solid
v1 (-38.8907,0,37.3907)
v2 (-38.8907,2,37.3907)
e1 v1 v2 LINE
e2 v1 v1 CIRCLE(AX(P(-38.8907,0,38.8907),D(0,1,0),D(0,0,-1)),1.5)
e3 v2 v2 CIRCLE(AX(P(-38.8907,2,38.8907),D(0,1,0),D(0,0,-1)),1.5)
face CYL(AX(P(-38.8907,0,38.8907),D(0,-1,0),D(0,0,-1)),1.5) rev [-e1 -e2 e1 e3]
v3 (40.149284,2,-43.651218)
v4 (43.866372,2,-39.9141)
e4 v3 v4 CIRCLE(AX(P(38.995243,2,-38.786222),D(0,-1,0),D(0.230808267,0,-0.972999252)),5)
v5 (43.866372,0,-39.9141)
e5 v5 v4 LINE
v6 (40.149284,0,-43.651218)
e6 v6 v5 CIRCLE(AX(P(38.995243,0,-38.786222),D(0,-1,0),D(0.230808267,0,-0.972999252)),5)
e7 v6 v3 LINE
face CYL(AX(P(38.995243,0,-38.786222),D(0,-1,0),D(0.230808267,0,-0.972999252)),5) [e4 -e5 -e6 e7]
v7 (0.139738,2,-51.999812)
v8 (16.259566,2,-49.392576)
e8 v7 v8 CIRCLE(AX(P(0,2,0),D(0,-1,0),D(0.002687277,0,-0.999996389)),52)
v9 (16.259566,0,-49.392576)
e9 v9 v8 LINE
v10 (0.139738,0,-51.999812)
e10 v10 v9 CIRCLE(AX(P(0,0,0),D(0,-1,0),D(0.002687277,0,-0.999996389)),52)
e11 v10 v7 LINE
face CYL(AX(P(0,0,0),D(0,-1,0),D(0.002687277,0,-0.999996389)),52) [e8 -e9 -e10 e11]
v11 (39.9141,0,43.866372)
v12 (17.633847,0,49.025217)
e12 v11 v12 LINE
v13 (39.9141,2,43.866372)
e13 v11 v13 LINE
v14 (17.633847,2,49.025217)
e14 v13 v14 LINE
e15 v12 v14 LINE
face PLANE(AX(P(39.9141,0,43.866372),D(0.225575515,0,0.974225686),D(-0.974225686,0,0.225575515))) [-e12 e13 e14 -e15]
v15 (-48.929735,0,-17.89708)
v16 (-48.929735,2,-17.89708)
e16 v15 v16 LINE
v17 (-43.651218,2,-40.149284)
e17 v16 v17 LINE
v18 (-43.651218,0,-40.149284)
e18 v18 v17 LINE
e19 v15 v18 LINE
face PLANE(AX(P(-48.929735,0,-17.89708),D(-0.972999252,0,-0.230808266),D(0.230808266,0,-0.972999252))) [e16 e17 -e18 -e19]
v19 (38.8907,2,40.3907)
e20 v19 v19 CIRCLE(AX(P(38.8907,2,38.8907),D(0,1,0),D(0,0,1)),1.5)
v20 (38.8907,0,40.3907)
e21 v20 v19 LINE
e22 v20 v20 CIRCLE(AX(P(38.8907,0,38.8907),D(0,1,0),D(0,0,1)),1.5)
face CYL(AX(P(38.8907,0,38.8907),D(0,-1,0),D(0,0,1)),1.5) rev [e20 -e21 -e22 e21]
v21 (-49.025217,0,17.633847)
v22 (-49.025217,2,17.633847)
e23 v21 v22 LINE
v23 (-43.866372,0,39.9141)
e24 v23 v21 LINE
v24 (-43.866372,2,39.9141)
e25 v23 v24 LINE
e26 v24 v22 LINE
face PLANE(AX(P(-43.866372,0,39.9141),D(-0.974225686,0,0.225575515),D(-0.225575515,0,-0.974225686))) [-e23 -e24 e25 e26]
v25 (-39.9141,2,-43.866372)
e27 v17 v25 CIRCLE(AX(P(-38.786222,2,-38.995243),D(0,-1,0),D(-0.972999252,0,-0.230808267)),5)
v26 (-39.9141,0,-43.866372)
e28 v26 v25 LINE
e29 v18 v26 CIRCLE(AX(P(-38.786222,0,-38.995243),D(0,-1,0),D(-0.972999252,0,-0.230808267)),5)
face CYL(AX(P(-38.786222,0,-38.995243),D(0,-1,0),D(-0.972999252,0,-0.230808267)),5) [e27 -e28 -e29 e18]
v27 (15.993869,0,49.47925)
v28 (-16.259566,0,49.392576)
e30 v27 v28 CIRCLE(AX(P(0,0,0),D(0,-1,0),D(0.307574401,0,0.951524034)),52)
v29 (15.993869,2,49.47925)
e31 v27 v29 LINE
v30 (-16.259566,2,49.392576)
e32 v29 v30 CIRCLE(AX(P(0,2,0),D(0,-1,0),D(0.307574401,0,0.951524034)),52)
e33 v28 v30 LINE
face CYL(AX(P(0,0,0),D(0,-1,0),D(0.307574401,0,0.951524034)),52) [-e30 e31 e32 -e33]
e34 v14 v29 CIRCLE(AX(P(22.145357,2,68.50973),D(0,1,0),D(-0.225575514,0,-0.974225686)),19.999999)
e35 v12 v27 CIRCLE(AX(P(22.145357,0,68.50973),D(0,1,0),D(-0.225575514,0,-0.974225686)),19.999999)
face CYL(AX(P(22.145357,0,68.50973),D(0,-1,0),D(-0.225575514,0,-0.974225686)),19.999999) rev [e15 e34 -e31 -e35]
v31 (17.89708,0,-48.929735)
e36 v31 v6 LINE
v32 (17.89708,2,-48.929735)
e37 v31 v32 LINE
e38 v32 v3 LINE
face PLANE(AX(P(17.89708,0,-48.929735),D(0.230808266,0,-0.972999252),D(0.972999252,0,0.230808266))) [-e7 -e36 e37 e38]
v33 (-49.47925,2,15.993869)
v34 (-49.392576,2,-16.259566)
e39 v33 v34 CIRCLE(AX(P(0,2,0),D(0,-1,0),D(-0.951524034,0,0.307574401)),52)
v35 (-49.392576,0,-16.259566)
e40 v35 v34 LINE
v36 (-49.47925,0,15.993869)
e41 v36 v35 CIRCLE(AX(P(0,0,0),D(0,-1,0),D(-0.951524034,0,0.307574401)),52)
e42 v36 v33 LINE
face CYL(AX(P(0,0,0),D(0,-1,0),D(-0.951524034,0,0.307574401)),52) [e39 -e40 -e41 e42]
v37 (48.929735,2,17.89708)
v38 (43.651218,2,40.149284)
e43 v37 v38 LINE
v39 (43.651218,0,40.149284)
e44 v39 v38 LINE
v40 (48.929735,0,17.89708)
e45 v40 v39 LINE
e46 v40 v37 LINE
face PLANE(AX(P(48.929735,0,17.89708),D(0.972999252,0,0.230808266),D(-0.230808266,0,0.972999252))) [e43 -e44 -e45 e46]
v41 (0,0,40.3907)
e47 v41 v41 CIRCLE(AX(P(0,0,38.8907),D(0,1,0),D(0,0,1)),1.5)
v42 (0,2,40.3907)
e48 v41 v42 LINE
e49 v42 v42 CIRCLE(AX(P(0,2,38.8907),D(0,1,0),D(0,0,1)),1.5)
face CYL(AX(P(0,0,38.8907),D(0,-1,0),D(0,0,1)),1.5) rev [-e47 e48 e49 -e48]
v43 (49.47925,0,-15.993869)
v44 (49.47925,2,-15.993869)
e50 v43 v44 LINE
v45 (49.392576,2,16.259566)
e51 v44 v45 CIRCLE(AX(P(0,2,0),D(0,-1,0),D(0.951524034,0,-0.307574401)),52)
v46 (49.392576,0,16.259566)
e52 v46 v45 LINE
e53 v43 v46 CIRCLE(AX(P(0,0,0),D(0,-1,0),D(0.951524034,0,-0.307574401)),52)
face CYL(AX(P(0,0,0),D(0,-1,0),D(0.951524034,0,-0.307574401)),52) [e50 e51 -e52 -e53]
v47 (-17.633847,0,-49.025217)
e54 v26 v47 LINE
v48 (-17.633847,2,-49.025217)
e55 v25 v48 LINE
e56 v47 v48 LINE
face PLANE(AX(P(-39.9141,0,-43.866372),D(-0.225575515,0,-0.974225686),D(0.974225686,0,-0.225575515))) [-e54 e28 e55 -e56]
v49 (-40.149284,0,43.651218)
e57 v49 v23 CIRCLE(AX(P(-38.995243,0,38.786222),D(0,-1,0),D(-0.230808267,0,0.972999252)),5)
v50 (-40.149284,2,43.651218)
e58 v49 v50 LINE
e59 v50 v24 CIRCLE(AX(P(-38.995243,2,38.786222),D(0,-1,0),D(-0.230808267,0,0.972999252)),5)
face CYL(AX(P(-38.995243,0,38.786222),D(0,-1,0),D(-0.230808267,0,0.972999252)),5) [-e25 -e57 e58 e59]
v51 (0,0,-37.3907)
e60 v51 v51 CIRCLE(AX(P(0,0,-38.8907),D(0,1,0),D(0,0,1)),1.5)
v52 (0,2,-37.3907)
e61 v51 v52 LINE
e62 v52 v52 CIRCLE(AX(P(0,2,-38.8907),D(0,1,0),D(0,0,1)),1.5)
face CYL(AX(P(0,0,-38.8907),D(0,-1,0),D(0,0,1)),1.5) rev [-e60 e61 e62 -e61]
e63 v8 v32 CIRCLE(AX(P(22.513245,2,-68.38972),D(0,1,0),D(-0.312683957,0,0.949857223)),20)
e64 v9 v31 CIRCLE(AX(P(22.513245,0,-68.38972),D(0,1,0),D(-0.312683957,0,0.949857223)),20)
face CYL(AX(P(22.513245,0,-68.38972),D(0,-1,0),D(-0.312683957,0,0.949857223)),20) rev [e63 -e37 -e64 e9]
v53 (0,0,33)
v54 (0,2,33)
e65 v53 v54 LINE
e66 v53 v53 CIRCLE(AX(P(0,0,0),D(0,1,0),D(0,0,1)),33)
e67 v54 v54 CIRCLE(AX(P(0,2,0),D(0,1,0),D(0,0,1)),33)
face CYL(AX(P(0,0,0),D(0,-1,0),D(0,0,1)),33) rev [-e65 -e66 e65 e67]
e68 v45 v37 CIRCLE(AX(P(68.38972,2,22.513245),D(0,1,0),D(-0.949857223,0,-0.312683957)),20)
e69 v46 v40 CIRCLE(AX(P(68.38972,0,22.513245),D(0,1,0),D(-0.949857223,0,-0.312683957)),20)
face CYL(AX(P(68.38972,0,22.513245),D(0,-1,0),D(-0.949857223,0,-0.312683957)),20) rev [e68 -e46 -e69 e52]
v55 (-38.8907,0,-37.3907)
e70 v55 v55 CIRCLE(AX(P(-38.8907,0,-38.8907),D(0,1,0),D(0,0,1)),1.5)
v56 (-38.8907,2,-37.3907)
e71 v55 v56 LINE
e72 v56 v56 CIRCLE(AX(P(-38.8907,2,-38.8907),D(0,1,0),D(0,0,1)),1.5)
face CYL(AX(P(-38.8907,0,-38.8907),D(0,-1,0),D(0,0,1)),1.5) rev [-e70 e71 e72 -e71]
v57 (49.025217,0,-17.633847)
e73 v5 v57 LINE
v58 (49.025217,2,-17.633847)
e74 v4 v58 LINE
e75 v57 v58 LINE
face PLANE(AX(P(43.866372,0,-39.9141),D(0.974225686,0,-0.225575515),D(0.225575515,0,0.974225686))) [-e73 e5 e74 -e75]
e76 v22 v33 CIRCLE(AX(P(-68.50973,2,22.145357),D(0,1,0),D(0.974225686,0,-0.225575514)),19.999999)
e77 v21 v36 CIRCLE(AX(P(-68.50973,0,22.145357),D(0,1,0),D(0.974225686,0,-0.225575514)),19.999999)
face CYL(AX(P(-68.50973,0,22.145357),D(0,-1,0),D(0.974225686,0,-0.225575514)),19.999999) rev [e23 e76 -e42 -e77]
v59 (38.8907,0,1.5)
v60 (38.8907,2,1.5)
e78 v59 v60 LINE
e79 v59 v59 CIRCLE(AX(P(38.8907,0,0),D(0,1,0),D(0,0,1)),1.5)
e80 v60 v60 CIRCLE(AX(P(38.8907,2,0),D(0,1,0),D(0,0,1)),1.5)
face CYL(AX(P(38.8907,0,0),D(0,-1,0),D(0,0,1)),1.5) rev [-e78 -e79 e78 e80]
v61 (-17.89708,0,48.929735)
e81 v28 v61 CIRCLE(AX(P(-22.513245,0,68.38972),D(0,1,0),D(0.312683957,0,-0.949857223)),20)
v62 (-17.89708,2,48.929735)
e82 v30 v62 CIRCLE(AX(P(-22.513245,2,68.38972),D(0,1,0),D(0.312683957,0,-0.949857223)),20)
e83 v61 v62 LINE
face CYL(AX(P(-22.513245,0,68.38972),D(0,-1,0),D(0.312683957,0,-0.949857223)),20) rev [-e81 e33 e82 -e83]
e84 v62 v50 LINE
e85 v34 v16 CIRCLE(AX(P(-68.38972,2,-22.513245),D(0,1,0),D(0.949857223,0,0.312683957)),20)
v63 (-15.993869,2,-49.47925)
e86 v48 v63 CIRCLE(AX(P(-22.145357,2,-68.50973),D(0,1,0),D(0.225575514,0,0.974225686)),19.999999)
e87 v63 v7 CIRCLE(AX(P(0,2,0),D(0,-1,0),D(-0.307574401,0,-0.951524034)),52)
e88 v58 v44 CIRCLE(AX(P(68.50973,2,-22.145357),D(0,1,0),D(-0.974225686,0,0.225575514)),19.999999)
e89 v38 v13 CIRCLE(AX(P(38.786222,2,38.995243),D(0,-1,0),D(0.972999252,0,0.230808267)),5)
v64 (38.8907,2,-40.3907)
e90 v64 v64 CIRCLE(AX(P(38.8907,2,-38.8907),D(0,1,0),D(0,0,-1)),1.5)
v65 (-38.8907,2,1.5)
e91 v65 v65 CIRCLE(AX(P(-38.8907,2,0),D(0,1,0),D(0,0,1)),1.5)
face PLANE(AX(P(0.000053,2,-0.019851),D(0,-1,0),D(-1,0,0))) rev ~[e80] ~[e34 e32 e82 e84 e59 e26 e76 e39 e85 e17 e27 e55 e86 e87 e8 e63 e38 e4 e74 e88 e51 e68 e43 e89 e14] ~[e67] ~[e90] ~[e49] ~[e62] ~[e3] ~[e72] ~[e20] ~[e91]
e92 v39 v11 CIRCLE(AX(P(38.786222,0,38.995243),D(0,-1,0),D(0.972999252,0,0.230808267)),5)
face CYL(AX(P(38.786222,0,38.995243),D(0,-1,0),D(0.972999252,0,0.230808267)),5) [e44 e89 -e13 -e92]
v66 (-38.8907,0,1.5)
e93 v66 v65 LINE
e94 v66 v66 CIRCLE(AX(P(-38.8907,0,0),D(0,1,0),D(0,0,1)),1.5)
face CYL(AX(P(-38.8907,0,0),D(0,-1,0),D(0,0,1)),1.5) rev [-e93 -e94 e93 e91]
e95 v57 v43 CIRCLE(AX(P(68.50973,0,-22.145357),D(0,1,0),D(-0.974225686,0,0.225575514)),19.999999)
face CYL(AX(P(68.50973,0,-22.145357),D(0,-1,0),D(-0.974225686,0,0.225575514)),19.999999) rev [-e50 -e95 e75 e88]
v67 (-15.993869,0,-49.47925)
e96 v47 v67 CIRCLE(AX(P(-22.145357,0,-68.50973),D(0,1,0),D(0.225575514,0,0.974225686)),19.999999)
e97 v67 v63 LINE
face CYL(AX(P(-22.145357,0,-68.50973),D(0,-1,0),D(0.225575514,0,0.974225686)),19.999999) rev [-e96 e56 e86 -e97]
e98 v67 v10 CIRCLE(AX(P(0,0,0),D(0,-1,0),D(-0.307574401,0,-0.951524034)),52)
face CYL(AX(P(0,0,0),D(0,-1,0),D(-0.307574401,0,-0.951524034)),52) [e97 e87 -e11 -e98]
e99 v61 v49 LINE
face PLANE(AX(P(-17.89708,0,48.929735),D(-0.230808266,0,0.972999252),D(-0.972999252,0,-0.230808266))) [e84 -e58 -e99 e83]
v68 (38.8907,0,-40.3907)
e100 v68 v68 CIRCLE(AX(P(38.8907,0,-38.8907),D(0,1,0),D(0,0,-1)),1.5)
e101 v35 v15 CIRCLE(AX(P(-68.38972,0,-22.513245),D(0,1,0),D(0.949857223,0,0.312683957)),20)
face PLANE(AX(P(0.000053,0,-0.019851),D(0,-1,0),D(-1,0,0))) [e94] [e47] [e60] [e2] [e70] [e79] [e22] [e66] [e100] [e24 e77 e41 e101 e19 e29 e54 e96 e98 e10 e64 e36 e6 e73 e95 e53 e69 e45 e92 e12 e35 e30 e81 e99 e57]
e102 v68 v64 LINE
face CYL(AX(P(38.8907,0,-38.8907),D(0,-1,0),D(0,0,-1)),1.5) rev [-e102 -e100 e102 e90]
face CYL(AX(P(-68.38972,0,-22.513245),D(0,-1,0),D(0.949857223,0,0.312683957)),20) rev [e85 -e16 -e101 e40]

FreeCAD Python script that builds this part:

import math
import FreeCAD as App
import Part
import Sketcher
Q = App.Units.Quantity

doc = App.newDocument("Part")
body = doc.addObject("PartDesign::Body", "Body")

# Sketch on XZ plane
sketch1 = doc.addObject("Sketcher::SketchObject", "Sketch")
body.addObject(sketch1)
sketch1.AttachmentSupport = (doc.XZ_Plane, [""])
sketch1.MapMode = "FlatFace"
sketch1.addGeometry(Part.LineSegment(App.Vector(40.1, -43.7, 0), App.Vector(17.9, -48.9, 0)), False)
sketch1.addGeometry(Part.ArcOfCircle(Part.Circle(App.Vector(22.5, -68.4, 0), App.Vector(0, 0, 1), 20), math.radians(103.34), math.radians(108.22)), False)
sketch1.addGeometry(Part.ArcOfCircle(Part.Circle(App.Vector(0, 0, 0), App.Vector(0, 0, 1), 52), math.radians(-89.85), math.radians(-71.78)), False)
sketch1.addGeometry(Part.ArcOfCircle(Part.Circle(App.Vector(0, 0, 0), App.Vector(0, 0, 1), 52), math.radians(-107.91), math.radians(-89.85)), False)
sketch1.addGeometry(Part.ArcOfCircle(Part.Circle(App.Vector(-22.1, -68.5, 0), App.Vector(0, 0, 1), 20), math.radians(72.09), math.radians(76.96)), False)
sketch1.addGeometry(Part.LineSegment(App.Vector(-17.6, -49, 0), App.Vector(-39.9, -43.9, 0)), False)
sketch1.addGeometry(Part.ArcOfCircle(Part.Circle(App.Vector(-38.8, -39, 0), App.Vector(0, 0, 1), 5), math.radians(-167), math.radians(-103)), False)
sketch1.addGeometry(Part.LineSegment(App.Vector(-43.7, -40.1, 0), App.Vector(-48.9, -17.9, 0)), False)
sketch1.addGeometry(Part.ArcOfCircle(Part.Circle(App.Vector(-68.4, -22.5, 0), App.Vector(0, 0, 1), 20), math.radians(13.34), math.radians(18.22)), False)
sketch1.addGeometry(Part.ArcOfCircle(Part.Circle(App.Vector(0, 0, 0), App.Vector(0, 0, 1), 52), math.radians(162), math.radians(198)), False)
sketch1.addGeometry(Part.ArcOfCircle(Part.Circle(App.Vector(-68.5, 22.1, 0), App.Vector(0, 0, 1), 20), math.radians(-17.91), math.radians(-13.04)), False)
sketch1.addGeometry(Part.LineSegment(App.Vector(-49, 17.6, 0), App.Vector(-43.9, 39.9, 0)), False)
sketch1.addGeometry(Part.ArcOfCircle(Part.Circle(App.Vector(-39, 38.8, 0), App.Vector(0, 0, 1), 5), math.radians(103), math.radians(167)), False)
sketch1.addGeometry(Part.LineSegment(App.Vector(-40.1, 43.7, 0), App.Vector(-17.9, 48.9, 0)), False)
sketch1.addGeometry(Part.ArcOfCircle(Part.Circle(App.Vector(-22.5, 68.4, 0), App.Vector(0, 0, 1), 20), math.radians(-76.66), math.radians(-71.78)), False)
sketch1.addGeometry(Part.ArcOfCircle(Part.Circle(App.Vector(0, 0, 0), App.Vector(0, 0, 1), 52), math.radians(72), math.radians(108)), False)
sketch1.addGeometry(Part.ArcOfCircle(Part.Circle(App.Vector(22.1, 68.5, 0), App.Vector(0, 0, 1), 20), math.radians(-107.91), math.radians(-103.04)), False)
sketch1.addGeometry(Part.LineSegment(App.Vector(17.6, 49, 0), App.Vector(39.9, 43.9, 0)), False)
sketch1.addGeometry(Part.ArcOfCircle(Part.Circle(App.Vector(38.8, 39, 0), App.Vector(0, 0, 1), 5), math.radians(13), math.radians(77)), False)
sketch1.addGeometry(Part.LineSegment(App.Vector(43.7, 40.1, 0), App.Vector(48.9, 17.9, 0)), False)
sketch1.addGeometry(Part.ArcOfCircle(Part.Circle(App.Vector(68.4, 22.5, 0), App.Vector(0, 0, 1), 20), math.radians(-166.66), math.radians(-161.78)), False)
sketch1.addGeometry(Part.ArcOfCircle(Part.Circle(App.Vector(0, 0, 0), App.Vector(0, 0, 1), 52), math.radians(-18), math.radians(18)), False)
sketch1.addGeometry(Part.ArcOfCircle(Part.Circle(App.Vector(68.5, -22.1, 0), App.Vector(0, 0, 1), 20), math.radians(162.09), math.radians(166.96)), False)
sketch1.addGeometry(Part.LineSegment(App.Vector(49, -17.6, 0), App.Vector(43.9, -39.9, 0)), False)
sketch1.addGeometry(Part.ArcOfCircle(Part.Circle(App.Vector(39, -38.8, 0), App.Vector(0, 0, 1), 5), math.radians(-77), math.radians(-13)), False)
sketch1.addGeometry(Part.Circle(App.Vector(38.9, 38.9, 0), App.Vector(0, 0, 1), 1.5), False)
sketch1.addGeometry(Part.Circle(App.Vector(0, 38.9, 0), App.Vector(0, 0, 1), 1.5), False)
sketch1.addGeometry(Part.Circle(App.Vector(-38.9, 38.9, 0), App.Vector(0, 0, 1), 1.5), False)
sketch1.addGeometry(Part.Circle(App.Vector(38.9, 0, 0), App.Vector(0, 0, 1), 1.5), False)
sketch1.addGeometry(Part.Circle(App.Vector(38.9, -38.9, 0), App.Vector(0, 0, 1), 1.5), False)
sketch1.addGeometry(Part.Circle(App.Vector(0, 0, 0), App.Vector(0, 0, 1), 33), False)
sketch1.addGeometry(Part.Circle(App.Vector(-38.9, 0, 0), App.Vector(0, 0, 1), 1.5), False)
sketch1.addGeometry(Part.Circle(App.Vector(0, -38.9, 0), App.Vector(0, 0, 1), 1.5), False)
sketch1.addGeometry(Part.Circle(App.Vector(-38.9, -38.9, 0), App.Vector(0, 0, 1), 1.5), False)
sketch1.addConstraint(Sketcher.Constraint("Tangent", 0, 2, 1, 1))
sketch1.addConstraint(Sketcher.Constraint("Tangent", 1, 2, 2, 2))
sketch1.addConstraint(Sketcher.Constraint("Tangent", 2, 1, 3, 2))
sketch1.addConstraint(Sketcher.Constraint("Tangent", 3, 1, 4, 1))
sketch1.addConstraint(Sketcher.Constraint("Tangent", 4, 2, 5, 1))
sketch1.addConstraint(Sketcher.Constraint("Tangent", 5, 2, 6, 2))
sketch1.addConstraint(Sketcher.Constraint("Tangent", 6, 1, 7, 1))
sketch1.addConstraint(Sketcher.Constraint("Tangent", 7, 2, 8, 1))
sketch1.addConstraint(Sketcher.Constraint("Tangent", 8, 2, 9, 2))
sketch1.addConstraint(Sketcher.Constraint("Tangent", 9, 1, 10, 1))
sketch1.addConstraint(Sketcher.Constraint("Tangent", 10, 2, 11, 1))
sketch1.addConstraint(Sketcher.Constraint("Tangent", 11, 2, 12, 2))
sketch1.addConstraint(Sketcher.Constraint("Tangent", 12, 1, 13, 1))
sketch1.addConstraint(Sketcher.Constraint("Tangent", 13, 2, 14, 1))
sketch1.addConstraint(Sketcher.Constraint("Tangent", 14, 2, 15, 2))
sketch1.addConstraint(Sketcher.Constraint("Tangent", 15, 1, 16, 1))
sketch1.addConstraint(Sketcher.Constraint("Tangent", 16, 2, 17, 1))
sketch1.addConstraint(Sketcher.Constraint("Tangent", 17, 2, 18, 2))
sketch1.addConstraint(Sketcher.Constraint("Tangent", 18, 1, 19, 1))
sketch1.addConstraint(Sketcher.Constraint("Tangent", 19, 2, 20, 1))
sketch1.addConstraint(Sketcher.Constraint("Tangent", 20, 2, 21, 2))
sketch1.addConstraint(Sketcher.Constraint("Tangent", 21, 1, 22, 1))
sketch1.addConstraint(Sketcher.Constraint("Tangent", 22, 2, 23, 1))
sketch1.addConstraint(Sketcher.Constraint("Tangent", 23, 2, 24, 2))
sketch1.addConstraint(Sketcher.Constraint("Tangent", 24, 1, 0, 1))
sketch1.addConstraint(Sketcher.Constraint("Coincident", 2, 3, -1, 1))
sketch1.addConstraint(Sketcher.Constraint("Coincident", 9, 3, -1, 1))
sketch1.addConstraint(Sketcher.Constraint("Coincident", 15, 3, -1, 1))
sketch1.addConstraint(Sketcher.Constraint("Coincident", 21, 3, -1, 1))
sketch1.addConstraint(Sketcher.Constraint("Coincident", 30, 3, -1, 1))
sketch1.addConstraint(Sketcher.Constraint("Equal", 2, 3))
sketch1.addConstraint(Sketcher.Constraint("Equal", 1, 4))
sketch1.addConstraint(Sketcher.Constraint("Equal", 4, 8))
sketch1.addConstraint(Sketcher.Constraint("Equal", 3, 9))
sketch1.addConstraint(Sketcher.Constraint("Equal", 8, 10))
sketch1.addConstraint(Sketcher.Constraint("Equal", 6, 12))
sketch1.addConstraint(Sketcher.Constraint("Equal", 10, 14))
sketch1.addConstraint(Sketcher.Constraint("Equal", 9, 15))
sketch1.addConstraint(Sketcher.Constraint("Equal", 14, 16))
sketch1.addConstraint(Sketcher.Constraint("Equal", 12, 18))
sketch1.addConstraint(Sketcher.Constraint("Equal", 16, 20))
sketch1.addConstraint(Sketcher.Constraint("Equal", 15, 21))
sketch1.addConstraint(Sketcher.Constraint("Equal", 20, 22))
sketch1.addConstraint(Sketcher.Constraint("Equal", 18, 24))
sketch1.addConstraint(Sketcher.Constraint("Equal", 25, 26))
sketch1.addConstraint(Sketcher.Constraint("Equal", 26, 27))
sketch1.addConstraint(Sketcher.Constraint("Equal", 27, 28))
sketch1.addConstraint(Sketcher.Constraint("Equal", 28, 29))
sketch1.addConstraint(Sketcher.Constraint("Equal", 29, 31))
sketch1.addConstraint(Sketcher.Constraint("Equal", 31, 32))
sketch1.addConstraint(Sketcher.Constraint("Equal", 32, 33))
sketch1.addConstraint(Sketcher.Constraint("Symmetric", 6, 3, 18, 3, -1, 1))
sketch1.addConstraint(Sketcher.Constraint("Symmetric", 12, 3, 24, 3, -1, 1))
sketch1.addConstraint(Sketcher.Constraint("Symmetric", 27, 3, 29, 3, -1, 1))
sketch1.addConstraint(Sketcher.Constraint("Symmetric", 28, 3, 31, 3, -1, 1))
sketch1.addConstraint(Sketcher.Constraint("Symmetric", 26, 3, 32, 3, -1, 1))
sketch1.addConstraint(Sketcher.Constraint("Symmetric", 25, 3, 33, 3, -1, 1))
sketch1.addConstraint(Sketcher.Constraint("Symmetric", 25, 3, 27, 3, -2))
sketch1.addConstraint(Sketcher.Constraint("PointOnObject", 26, 3, -2))
sketch1.addConstraint(Sketcher.Constraint("PointOnObject", 28, 3, -1))
sketch1.addConstraint(Sketcher.Constraint("Perpendicular", 0, 7))
sketch1.addConstraint(Sketcher.Constraint("Perpendicular", 5, 11))
sketch1.addConstraint(Sketcher.Constraint("Perpendicular", 7, 13))
sketch1.addConstraint(Sketcher.Constraint("Perpendicular", 11, 17))
sketch1.addConstraint(Sketcher.Constraint("Perpendicular", 13, 19))
sketch1.addConstraint(Sketcher.Constraint("Perpendicular", 17, 23))
sketch1.addConstraint(Sketcher.Constraint("Horizontal", 25, 3, 26, 3))
sketch1.addConstraint(Sketcher.Constraint("Vertical", 25, 3, 28, 3))
sketch1.addConstraint(Sketcher.Constraint("Equal", 0, 5))
sketch1.addConstraint(Sketcher.Constraint("Equal", 5, 7))
sketch1.addConstraint(Sketcher.Constraint("Equal", 7, 11))
sketch1.addConstraint(Sketcher.Constraint("Diameter", 25, Q("3 mm")))
sketch1.addConstraint(Sketcher.Constraint("Diameter", 30, Q("66 mm")))
sketch1.addConstraint(Sketcher.Constraint("Radius", 1, Q("20 mm")))
sketch1.addConstraint(Sketcher.Constraint("Radius", 2, Q("52 mm")))
sketch1.addConstraint(Sketcher.Constraint("Radius", 6, Q("5 mm")))
sketch1.addConstraint(Sketcher.Constraint("DistanceY", 6, 3, 8, 3, Q("16.481998 mm")))
sketch1.addConstraint(Sketcher.Constraint("DistanceX", -1, 1, 25, 3, Q("38.8907 mm")))
sketch1.addConstraint(Sketcher.Constraint("DistanceY", -1, 1, 25, 3, Q("38.8907 mm")))
sketch1.addConstraint(Sketcher.Constraint("DistanceX", 5, 2, -1, 1, Q("39.9141 mm")))
sketch1.addConstraint(Sketcher.Constraint("DistanceX", 4, 3, 1, 3, Q("44.658602 mm")))
sketch1.addConstraint(Sketcher.Constraint("DistanceX", -1, 1, 2, 1, Q("0.139738 mm")))
pad1 = doc.addObject("PartDesign::Pad", "Pad")
body.addObject(pad1)
pad1.Profile = sketch1
pad1.Length = 2
pad1.Reversed = True

doc.recompute()
